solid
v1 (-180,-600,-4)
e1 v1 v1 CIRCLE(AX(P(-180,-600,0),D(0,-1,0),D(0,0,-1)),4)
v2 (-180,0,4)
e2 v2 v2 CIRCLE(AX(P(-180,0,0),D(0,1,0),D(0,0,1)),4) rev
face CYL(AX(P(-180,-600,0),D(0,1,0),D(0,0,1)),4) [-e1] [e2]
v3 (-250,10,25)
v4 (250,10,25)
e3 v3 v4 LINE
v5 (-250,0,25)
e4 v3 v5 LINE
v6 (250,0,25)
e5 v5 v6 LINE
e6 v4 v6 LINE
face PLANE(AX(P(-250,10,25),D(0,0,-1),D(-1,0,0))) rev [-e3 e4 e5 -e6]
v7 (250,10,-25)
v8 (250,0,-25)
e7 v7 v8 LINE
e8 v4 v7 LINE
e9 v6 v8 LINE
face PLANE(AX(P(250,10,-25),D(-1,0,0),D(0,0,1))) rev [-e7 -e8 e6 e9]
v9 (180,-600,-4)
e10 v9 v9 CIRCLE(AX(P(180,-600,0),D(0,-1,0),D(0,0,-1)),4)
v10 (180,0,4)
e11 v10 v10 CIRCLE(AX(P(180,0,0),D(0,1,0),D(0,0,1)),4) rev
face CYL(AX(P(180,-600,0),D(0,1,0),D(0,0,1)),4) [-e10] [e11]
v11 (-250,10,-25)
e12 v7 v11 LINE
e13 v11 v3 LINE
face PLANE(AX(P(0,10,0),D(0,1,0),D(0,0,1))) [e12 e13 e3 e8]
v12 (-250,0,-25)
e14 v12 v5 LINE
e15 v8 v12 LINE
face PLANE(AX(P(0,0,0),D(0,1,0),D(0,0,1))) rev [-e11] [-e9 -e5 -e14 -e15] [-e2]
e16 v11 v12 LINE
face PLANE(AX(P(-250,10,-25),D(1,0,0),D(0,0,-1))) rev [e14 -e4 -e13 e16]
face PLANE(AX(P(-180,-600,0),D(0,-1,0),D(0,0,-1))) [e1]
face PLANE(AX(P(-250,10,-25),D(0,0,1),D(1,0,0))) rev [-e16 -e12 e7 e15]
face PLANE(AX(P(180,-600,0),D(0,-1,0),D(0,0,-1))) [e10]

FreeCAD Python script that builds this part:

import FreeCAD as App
import Part
import Sketcher


def add_polygon(sketch, points):
    """Adds a closed chain of lines whose ends are joined by coincident constraints."""
    first, n = sketch.GeometryCount, len(points)
    for a, b in zip(points, points[1:] + points[:1]):
        sketch.addGeometry(Part.LineSegment(App.Vector(*a, 0), App.Vector(*b, 0)), False)
    for i in range(n):
        sketch.addConstraint(Sketcher.Constraint("Coincident", first + i, 2, first + (i + 1) % n, 1))

doc = App.newDocument("Part")
params = doc.addObject("Spreadsheet::Sheet", "Params")
for row, (alias, value) in enumerate([
    ("sketch1_width", "500 mm"),
    ("sketch1_height", "50 mm"),
    ("pad1_length", "10 mm"),
    ("sketch2_diameter", "8 mm"),
    ("pad2_length", "600 mm"),
    ("sketch3_diameter", "8 mm"),
    ("pad3_length", "600 mm"),
], start=1):
    params.set(f"A{row}", alias)
    params.set(f"B{row}", "=" + value)
    params.setAlias(f"B{row}", alias)

body = doc.addObject("PartDesign::Body", "Body")

# Sketch on XZ plane
sketch1 = body.newObject("Sketcher::SketchObject", "Sketch")
sketch1.AttachmentSupport = (doc.getObject("XZ_Plane"), [""])
sketch1.MapMode = "FlatFace"
add_polygon(sketch1, [(-250, -25), (-250, 25), (250, 25), (250, -25)])  # lines 0-3
sketch1.addConstraint([
    Sketcher.Constraint("Vertical", 0),
    Sketcher.Constraint("Horizontal", 1),
    Sketcher.Constraint("Vertical", 2),
    Sketcher.Constraint("Horizontal", 3),
    Sketcher.Constraint("Symmetric", 0, 2, 2, 2, -1, 1),
    Sketcher.Constraint("DistanceX", 1, 1, 1, 2, 500.0),
    Sketcher.Constraint("DistanceY", 0, 1, 0, 2, 50.0),
])
sketch1.setExpression("Constraints[9]", "Params.sketch1_width")
sketch1.setExpression("Constraints[10]", "Params.sketch1_height")
pad1 = body.newObject("PartDesign::Pad", "Pad")
pad1.Profile = sketch1
pad1.setExpression("Length", "Params.pad1_length")
pad1.Reversed = True

# Sketch on XZ plane
sketch2 = body.newObject("Sketcher::SketchObject", "Sketch001")
sketch2.AttachmentSupport = (doc.getObject("XZ_Plane"), [""])
sketch2.MapMode = "FlatFace"
sketch2.addGeometry(Part.Circle(App.Vector(180, 0, 0), App.Vector(0, 0, 1), 4), False)
sketch2.addConstraint([
    Sketcher.Constraint("PointOnObject", 0, 3, -1),
    Sketcher.Constraint("Diameter", 0, 8.0),
    Sketcher.Constraint("DistanceX", -1, 1, 0, 3, 180.0),
])
sketch2.setExpression("Constraints[1]", "Params.sketch2_diameter")
pad2 = body.newObject("PartDesign::Pad", "Pad001")
pad2.Profile = sketch2
pad2.setExpression("Length", "Params.pad2_length")

# Sketch on XZ plane
sketch3 = body.newObject("Sketcher::SketchObject", "Sketch002")
sketch3.AttachmentSupport = (doc.getObject("XZ_Plane"), [""])
sketch3.MapMode = "FlatFace"
sketch3.addGeometry(Part.Circle(App.Vector(-180, 0, 0), App.Vector(0, 0, 1), 4), False)
sketch3.addConstraint([
    Sketcher.Constraint("PointOnObject", 0, 3, -1),
    Sketcher.Constraint("Diameter", 0, 8.0),
    Sketcher.Constraint("DistanceX", 0, 3, -1, 1, 180.0),
])
sketch3.setExpression("Constraints[1]", "Params.sketch3_diameter")
pad3 = body.newObject("PartDesign::Pad", "Pad002")
pad3.Profile = sketch3
pad3.setExpression("Length", "Params.pad3_length")

doc.recompute()
